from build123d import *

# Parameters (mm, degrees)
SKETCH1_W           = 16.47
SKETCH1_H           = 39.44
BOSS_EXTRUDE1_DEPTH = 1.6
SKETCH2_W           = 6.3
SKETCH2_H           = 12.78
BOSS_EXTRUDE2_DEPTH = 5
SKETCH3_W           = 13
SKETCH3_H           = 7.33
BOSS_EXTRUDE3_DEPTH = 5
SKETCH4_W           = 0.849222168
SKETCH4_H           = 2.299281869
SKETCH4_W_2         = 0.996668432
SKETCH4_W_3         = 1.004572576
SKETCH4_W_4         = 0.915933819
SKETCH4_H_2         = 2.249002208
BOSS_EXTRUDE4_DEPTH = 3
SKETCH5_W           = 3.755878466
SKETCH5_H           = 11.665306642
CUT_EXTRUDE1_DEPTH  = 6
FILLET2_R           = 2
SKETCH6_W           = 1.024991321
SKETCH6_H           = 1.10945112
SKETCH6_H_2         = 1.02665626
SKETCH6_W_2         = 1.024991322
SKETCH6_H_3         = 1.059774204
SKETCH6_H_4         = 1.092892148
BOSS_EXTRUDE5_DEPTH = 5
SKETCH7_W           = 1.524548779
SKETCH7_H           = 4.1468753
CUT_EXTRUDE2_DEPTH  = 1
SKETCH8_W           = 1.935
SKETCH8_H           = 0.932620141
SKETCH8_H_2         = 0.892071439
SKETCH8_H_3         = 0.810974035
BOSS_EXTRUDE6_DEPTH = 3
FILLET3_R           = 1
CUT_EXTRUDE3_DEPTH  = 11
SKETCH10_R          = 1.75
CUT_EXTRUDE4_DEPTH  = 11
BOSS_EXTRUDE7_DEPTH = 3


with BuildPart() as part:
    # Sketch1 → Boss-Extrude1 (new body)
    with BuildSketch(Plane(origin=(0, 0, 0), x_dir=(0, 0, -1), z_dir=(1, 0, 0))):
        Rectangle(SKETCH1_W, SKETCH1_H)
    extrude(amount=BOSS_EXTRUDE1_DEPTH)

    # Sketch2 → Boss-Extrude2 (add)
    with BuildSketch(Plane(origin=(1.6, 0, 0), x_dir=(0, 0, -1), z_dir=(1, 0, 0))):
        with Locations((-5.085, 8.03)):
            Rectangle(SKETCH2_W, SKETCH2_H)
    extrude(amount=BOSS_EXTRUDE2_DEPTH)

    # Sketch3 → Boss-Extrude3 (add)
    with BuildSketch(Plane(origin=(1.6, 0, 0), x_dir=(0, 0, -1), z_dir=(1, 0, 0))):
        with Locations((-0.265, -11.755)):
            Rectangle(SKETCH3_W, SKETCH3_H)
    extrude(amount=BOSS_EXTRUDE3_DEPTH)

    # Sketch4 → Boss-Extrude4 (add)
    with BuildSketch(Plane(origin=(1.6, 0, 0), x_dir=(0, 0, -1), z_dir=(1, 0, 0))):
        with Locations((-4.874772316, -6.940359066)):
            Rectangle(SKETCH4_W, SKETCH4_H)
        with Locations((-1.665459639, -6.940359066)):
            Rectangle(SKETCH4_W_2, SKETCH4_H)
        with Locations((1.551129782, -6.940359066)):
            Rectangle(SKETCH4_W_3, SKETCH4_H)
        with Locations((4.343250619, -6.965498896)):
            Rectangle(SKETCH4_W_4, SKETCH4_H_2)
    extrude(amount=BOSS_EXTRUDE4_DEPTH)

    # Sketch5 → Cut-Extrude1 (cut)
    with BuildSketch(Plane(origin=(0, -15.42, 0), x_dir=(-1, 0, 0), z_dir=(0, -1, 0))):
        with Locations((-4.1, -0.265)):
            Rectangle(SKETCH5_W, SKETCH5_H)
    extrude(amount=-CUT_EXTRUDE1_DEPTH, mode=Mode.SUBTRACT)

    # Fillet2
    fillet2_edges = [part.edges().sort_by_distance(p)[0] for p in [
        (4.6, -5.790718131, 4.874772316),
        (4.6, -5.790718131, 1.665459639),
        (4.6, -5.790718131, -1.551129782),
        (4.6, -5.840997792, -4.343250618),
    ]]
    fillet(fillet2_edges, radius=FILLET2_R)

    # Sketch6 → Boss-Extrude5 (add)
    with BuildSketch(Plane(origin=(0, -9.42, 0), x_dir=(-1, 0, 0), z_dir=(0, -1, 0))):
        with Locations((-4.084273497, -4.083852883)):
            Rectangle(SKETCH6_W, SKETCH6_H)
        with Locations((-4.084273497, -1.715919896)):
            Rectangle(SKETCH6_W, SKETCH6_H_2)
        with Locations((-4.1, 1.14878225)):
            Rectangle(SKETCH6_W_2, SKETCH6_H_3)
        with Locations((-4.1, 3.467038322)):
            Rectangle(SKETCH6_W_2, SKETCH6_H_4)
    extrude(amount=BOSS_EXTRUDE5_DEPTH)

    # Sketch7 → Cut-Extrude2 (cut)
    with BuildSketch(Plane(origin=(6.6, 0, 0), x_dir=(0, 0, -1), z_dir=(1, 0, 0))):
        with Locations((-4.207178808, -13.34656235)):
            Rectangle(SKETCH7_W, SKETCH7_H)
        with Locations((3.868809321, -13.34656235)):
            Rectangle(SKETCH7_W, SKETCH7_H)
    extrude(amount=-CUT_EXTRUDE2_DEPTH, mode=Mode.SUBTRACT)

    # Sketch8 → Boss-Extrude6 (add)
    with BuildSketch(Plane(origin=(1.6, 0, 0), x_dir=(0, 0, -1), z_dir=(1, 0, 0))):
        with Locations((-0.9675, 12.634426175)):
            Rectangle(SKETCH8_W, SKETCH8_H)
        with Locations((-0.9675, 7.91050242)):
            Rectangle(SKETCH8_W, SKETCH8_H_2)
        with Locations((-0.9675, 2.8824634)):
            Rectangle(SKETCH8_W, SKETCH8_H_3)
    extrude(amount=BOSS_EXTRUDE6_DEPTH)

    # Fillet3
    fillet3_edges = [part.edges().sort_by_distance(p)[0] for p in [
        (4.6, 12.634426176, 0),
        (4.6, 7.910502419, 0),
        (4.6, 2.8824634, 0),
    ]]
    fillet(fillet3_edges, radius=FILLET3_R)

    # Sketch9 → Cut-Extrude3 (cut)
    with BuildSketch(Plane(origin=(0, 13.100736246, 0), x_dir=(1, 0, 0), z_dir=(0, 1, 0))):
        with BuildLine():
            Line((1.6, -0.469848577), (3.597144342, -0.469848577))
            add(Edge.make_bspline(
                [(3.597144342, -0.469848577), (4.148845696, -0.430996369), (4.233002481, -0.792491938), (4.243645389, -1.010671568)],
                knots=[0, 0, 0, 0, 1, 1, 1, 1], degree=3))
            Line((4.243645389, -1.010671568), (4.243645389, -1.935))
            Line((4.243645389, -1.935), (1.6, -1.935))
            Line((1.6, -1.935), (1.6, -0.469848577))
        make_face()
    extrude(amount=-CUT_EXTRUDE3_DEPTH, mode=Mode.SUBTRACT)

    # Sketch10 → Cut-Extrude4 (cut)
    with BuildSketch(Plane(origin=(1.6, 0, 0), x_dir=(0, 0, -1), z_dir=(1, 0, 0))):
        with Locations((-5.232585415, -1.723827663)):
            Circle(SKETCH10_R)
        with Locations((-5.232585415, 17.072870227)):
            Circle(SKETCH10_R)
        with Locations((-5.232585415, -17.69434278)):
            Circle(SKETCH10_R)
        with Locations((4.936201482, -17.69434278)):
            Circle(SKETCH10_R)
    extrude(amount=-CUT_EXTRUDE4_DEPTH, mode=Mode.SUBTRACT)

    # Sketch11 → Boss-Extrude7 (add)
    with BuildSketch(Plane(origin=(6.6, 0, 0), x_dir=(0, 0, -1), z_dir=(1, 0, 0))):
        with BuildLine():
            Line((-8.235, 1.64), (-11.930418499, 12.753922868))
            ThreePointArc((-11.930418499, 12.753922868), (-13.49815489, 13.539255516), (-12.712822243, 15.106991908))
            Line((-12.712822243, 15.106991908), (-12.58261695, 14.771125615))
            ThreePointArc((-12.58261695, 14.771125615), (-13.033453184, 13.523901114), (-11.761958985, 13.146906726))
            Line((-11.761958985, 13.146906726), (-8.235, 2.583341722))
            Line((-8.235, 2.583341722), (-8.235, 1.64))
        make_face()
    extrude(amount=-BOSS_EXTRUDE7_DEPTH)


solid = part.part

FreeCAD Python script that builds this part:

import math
import FreeCAD as App
import Part
import Sketcher
from FreeCAD import Vector
Q = App.Units.Quantity


def edges_at(feature, points):
    """Names of the edges that pass closest to the given points."""
    edges = feature.Shape.Edges
    near = lambda p: min(range(len(edges)), key=lambda i: edges[i].distToShape(Part.Vertex(*p))[0])
    return sorted({f"Edge{near(p) + 1}" for p in points})

doc = App.newDocument("Part")
params = doc.addObject("Spreadsheet::Sheet", "Params")
for row, (alias, value) in enumerate([
    ("sketch1_width", "39.44 mm"),
    ("sketch1_height", "16.47 mm"),
    ("pad1_length", "1.6 mm"),
    ("sketch2_height", "6.3 mm"),
    ("sketch2_width", "12.78 mm"),
    ("pad2_length", "5 mm"),
    ("sketch3_height", "13 mm"),
    ("sketch3_width", "7.33 mm"),
    ("pad3_length", "5 mm"),
    ("pad4_length", "3 mm"),
    ("pocket1_length", "6 mm"),
    ("fillet_radius", "2 mm"),
    ("pad5_length", "5 mm"),
    ("pocket2_length", "1 mm"),
    ("pad6_length", "3 mm"),
    ("fillet2_radius", "1 mm"),
    ("pocket3_length", "11 mm"),
    ("sketch10_diameter", "3.5 mm"),
    ("pocket4_length", "11 mm"),
    ("pad7_length", "3 mm"),
], start=1):
    params.set(f"A{row}", alias)
    params.set(f"B{row}", "=" + value)
    params.setAlias(f"B{row}", alias)

body = doc.addObject("PartDesign::Body", "Body")

# Sketch on YZ plane
sketch1 = doc.addObject("Sketcher::SketchObject", "Sketch")
body.addObject(sketch1)
sketch1.AttachmentSupport = (doc.YZ_Plane, [""])
sketch1.MapMode = "FlatFace"
sketch1.addGeometry([
    Part.LineSegment(Vector(20, 8, 0), Vector(-20, 8, 0)),
    Part.LineSegment(Vector(-20, 8, 0), Vector(-20, -8, 0)),
    Part.LineSegment(Vector(-20, -8, 0), Vector(20, -8, 0)),
    Part.LineSegment(Vector(20, -8, 0), Vector(20, 8, 0)),
], False)
sketch1.addConstraint([
    Sketcher.Constraint("Coincident", 0, 2, 1, 1),
    Sketcher.Constraint("Coincident", 1, 2, 2, 1),
    Sketcher.Constraint("Coincident", 2, 2, 3, 1),
    Sketcher.Constraint("Coincident", 3, 2, 0, 1),
    Sketcher.Constraint("Horizontal", 0),
    Sketcher.Constraint("Vertical", 1),
    Sketcher.Constraint("Horizontal", 2),
    Sketcher.Constraint("Vertical", 3),
    Sketcher.Constraint("Symmetric", 0, 2, 2, 2, -1, 1),
    Sketcher.Constraint("DistanceX", 0, 2, 0, 1, Q("39.44 mm")),
    Sketcher.Constraint("DistanceY", 1, 2, 1, 1, Q("16.47 mm")),
])
sketch1.setExpression("Constraints[9]", "Params.sketch1_width")
sketch1.setExpression("Constraints[10]", "Params.sketch1_height")
pad1 = doc.addObject("PartDesign::Pad", "Pad")
body.addObject(pad1)
pad1.Profile = sketch1
pad1.setExpression("Length", "Params.pad1_length")

# Sketch on YZ plane
sketch2 = doc.addObject("Sketcher::SketchObject", "Sketch001")
body.addObject(sketch2)
sketch2.AttachmentSupport = (doc.YZ_Plane, [""])
sketch2.MapMode = "FlatFace"
sketch2.AttachmentOffset = App.Placement(Vector(0, 0, 1.6), App.Rotation())
sketch2.addGeometry([
    Part.LineSegment(Vector(14, 8, 0), Vector(2, 8, 0)),
    Part.LineSegment(Vector(2, 8, 0), Vector(2, 2, 0)),
    Part.LineSegment(Vector(2, 2, 0), Vector(14, 2, 0)),
    Part.LineSegment(Vector(14, 2, 0), Vector(14, 8, 0)),
], False)
sketch2.addConstraint([
    Sketcher.Constraint("Coincident", 0, 2, 1, 1),
    Sketcher.Constraint("Coincident", 1, 2, 2, 1),
    Sketcher.Constraint("Coincident", 2, 2, 3, 1),
    Sketcher.Constraint("Coincident", 3, 2, 0, 1),
    Sketcher.Constraint("Horizontal", 0),
    Sketcher.Constraint("Vertical", 1),
    Sketcher.Constraint("Horizontal", 2),
    Sketcher.Constraint("Vertical", 3),
    Sketcher.Constraint("DistanceY", 1, 2, 1, 1, Q("6.3 mm")),
    Sketcher.Constraint("DistanceX", 0, 2, 0, 1, Q("12.78 mm")),
    Sketcher.Constraint("DistanceX", -1, 1, 0, 2, Q("1.64 mm")),
    Sketcher.Constraint("DistanceY", -1, 1, 0, 2, Q("8.235 mm")),
])
sketch2.setExpression("Constraints[8]", "Params.sketch2_height")
sketch2.setExpression("Constraints[9]", "Params.sketch2_width")
pad2 = doc.addObject("PartDesign::Pad", "Pad001")
body.addObject(pad2)
pad2.Profile = sketch2
pad2.setExpression("Length", "Params.pad2_length")

# Sketch on YZ plane
sketch3 = doc.addObject("Sketcher::SketchObject", "Sketch002")
body.addObject(sketch3)
sketch3.AttachmentSupport = (doc.YZ_Plane, [""])
sketch3.MapMode = "FlatFace"
sketch3.AttachmentOffset = App.Placement(Vector(0, 0, 1.6), App.Rotation())
sketch3.addGeometry([
    Part.LineSegment(Vector(-8, 7, 0), Vector(-15, 7, 0)),
    Part.LineSegment(Vector(-15, 7, 0), Vector(-15, -6, 0)),
    Part.LineSegment(Vector(-15, -6, 0), Vector(-8, -6, 0)),
    Part.LineSegment(Vector(-8, -6, 0), Vector(-8, 7, 0)),
], False)
sketch3.addConstraint([
    Sketcher.Constraint("Coincident", 0, 2, 1, 1),
    Sketcher.Constraint("Coincident", 1, 2, 2, 1),
    Sketcher.Constraint("Coincident", 2, 2, 3, 1),
    Sketcher.Constraint("Coincident", 3, 2, 0, 1),
    Sketcher.Constraint("Horizontal", 0),
    Sketcher.Constraint("Vertical", 1),
    Sketcher.Constraint("Horizontal", 2),
    Sketcher.Constraint("Vertical", 3),
    Sketcher.Constraint("DistanceY", 1, 2, 1, 1, Q("13 mm")),
    Sketcher.Constraint("DistanceX", 0, 2, 0, 1, Q("7.33 mm")),
    Sketcher.Constraint("DistanceX", 0, 2, -1, 1, Q("15.42 mm")),
    Sketcher.Constraint("DistanceY", -1, 1, 0, 2, Q("6.765 mm")),
])
sketch3.setExpression("Constraints[8]", "Params.sketch3_height")
sketch3.setExpression("Constraints[9]", "Params.sketch3_width")
pad3 = doc.addObject("PartDesign::Pad", "Pad002")
body.addObject(pad3)
pad3.Profile = sketch3
pad3.setExpression("Length", "Params.pad3_length")

# Sketch on YZ plane
sketch4 = doc.addObject("Sketcher::SketchObject", "Sketch003")
body.addObject(sketch4)
sketch4.AttachmentSupport = (doc.YZ_Plane, [""])
sketch4.MapMode = "FlatFace"
sketch4.AttachmentOffset = App.Placement(Vector(0, 0, 1.6), App.Rotation())
sketch4.addGeometry([
    Part.LineSegment(Vector(-5.8, 5.3, 0), Vector(-8.1, 5.3, 0)),  # 0
    Part.LineSegment(Vector(-8.1, 5.3, 0), Vector(-8.1, 4.5, 0)),  # 1
    Part.LineSegment(Vector(-8.1, 4.5, 0), Vector(-5.8, 4.5, 0)),  # 2
    Part.LineSegment(Vector(-5.8, 4.5, 0), Vector(-5.8, 5.3, 0)),  # 3
    Part.LineSegment(Vector(-5.8, 2.2, 0), Vector(-8.1, 2.2, 0)),  # 4
    Part.LineSegment(Vector(-8.1, 2.2, 0), Vector(-8.1, 1.2, 0)),  # 5
    Part.LineSegment(Vector(-8.1, 1.2, 0), Vector(-5.8, 1.2, 0)),  # 6
    Part.LineSegment(Vector(-5.8, 1.2, 0), Vector(-5.8, 2.2, 0)),  # 7
    Part.LineSegment(Vector(-5.8, -1, 0), Vector(-8.1, -1, 0)),  # 8
    Part.LineSegment(Vector(-8.1, -1, 0), Vector(-8.1, -2.1, 0)),  # 9
    Part.LineSegment(Vector(-8.1, -2.1, 0), Vector(-5.8, -2.1, 0)),  # 10
    Part.LineSegment(Vector(-5.8, -2.1, 0), Vector(-5.8, -1, 0)),  # 11
    Part.LineSegment(Vector(-5.8, -3.9, 0), Vector(-8.1, -3.9, 0)),  # 12
    Part.LineSegment(Vector(-8.1, -3.9, 0), Vector(-8.1, -4.8, 0)),  # 13
    Part.LineSegment(Vector(-8.1, -4.8, 0), Vector(-5.8, -4.8, 0)),  # 14
    Part.LineSegment(Vector(-5.8, -4.8, 0), Vector(-5.8, -3.9, 0)),  # 15
], False)
sketch4.addConstraint([
    Sketcher.Constraint("Coincident", 0, 2, 1, 1),
    Sketcher.Constraint("Coincident", 1, 2, 2, 1),
    Sketcher.Constraint("Coincident", 2, 2, 3, 1),
    Sketcher.Constraint("Coincident", 3, 2, 0, 1),
    Sketcher.Constraint("Coincident", 4, 2, 5, 1),
    Sketcher.Constraint("Coincident", 5, 2, 6, 1),
    Sketcher.Constraint("Coincident", 6, 2, 7, 1),
    Sketcher.Constraint("Coincident", 7, 2, 4, 1),
    Sketcher.Constraint("Coincident", 8, 2, 9, 1),
    Sketcher.Constraint("Coincident", 9, 2, 10, 1),
    Sketcher.Constraint("Coincident", 10, 2, 11, 1),
    Sketcher.Constraint("Coincident", 11, 2, 8, 1),
    Sketcher.Constraint("Coincident", 12, 2, 13, 1),
    Sketcher.Constraint("Coincident", 13, 2, 14, 1),
    Sketcher.Constraint("Coincident", 14, 2, 15, 1),
    Sketcher.Constraint("Coincident", 15, 2, 12, 1),
    Sketcher.Constraint("Horizontal", 0),
    Sketcher.Constraint("Vertical", 1),
    Sketcher.Constraint("Horizontal", 2),
    Sketcher.Constraint("Vertical", 3),
    Sketcher.Constraint("Horizontal", 4),
    Sketcher.Constraint("Vertical", 5),
    Sketcher.Constraint("Horizontal", 6),
    Sketcher.Constraint("Vertical", 7),
    Sketcher.Constraint("Horizontal", 8),
    Sketcher.Constraint("Vertical", 9),
    Sketcher.Constraint("Horizontal", 10),
    Sketcher.Constraint("Vertical", 11),
    Sketcher.Constraint("Horizontal", 12),
    Sketcher.Constraint("Vertical", 13),
    Sketcher.Constraint("Horizontal", 14),
    Sketcher.Constraint("Vertical", 15),
    Sketcher.Constraint("Vertical", 1, 2, 4, 2),
    Sketcher.Constraint("Vertical", 3, 2, 6, 2),
    Sketcher.Constraint("Vertical", 5, 2, 8, 2),
    Sketcher.Constraint("Vertical", 7, 2, 10, 2),
    Sketcher.Constraint("Vertical", 9, 2, 12, 2),
    Sketcher.Constraint("DistanceX", 0, 2, -1, 1, Q("8.09 mm")),
    Sketcher.Constraint("DistanceX", 0, 2, 0, 1, Q("2.299282 mm")),
    Sketcher.Constraint("DistanceY", 5, 2, 5, 1, Q("0.996668 mm")),
    Sketcher.Constraint("DistanceY", 13, 2, 9, 2, Q("2.747801 mm")),
    Sketcher.Constraint("DistanceX", 12, 2, 12, 1, Q("2.249002 mm")),
    Sketcher.Constraint("DistanceY", 1, 2, 1, 1, Q("0.849222 mm")),
    Sketcher.Constraint("DistanceY", 9, 2, 9, 1, Q("1.004573 mm")),
    Sketcher.Constraint("DistanceY", 13, 2, 13, 1, Q("0.915934 mm")),
    Sketcher.Constraint("DistanceY", -1, 1, 1, 2, Q("4.450161 mm")),
    Sketcher.Constraint("DistanceY", 4, 2, 0, 2, Q("3.13559 mm")),
    Sketcher.Constraint("DistanceY", 8, 2, 5, 2, Q("2.215969 mm")),
])
pad4 = doc.addObject("PartDesign::Pad", "Pad003")
body.addObject(pad4)
pad4.Profile = sketch4
pad4.setExpression("Length", "Params.pad4_length")

# Sketch on XZ plane
sketch5 = doc.addObject("Sketcher::SketchObject", "Sketch004")
body.addObject(sketch5)
sketch5.AttachmentSupport = (doc.XZ_Plane, [""])
sketch5.MapMode = "FlatFace"
sketch5.AttachmentOffset = App.Placement(Vector(0, 0, 15.42), App.Rotation())
sketch5.addGeometry([
    Part.LineSegment(Vector(6, -5.6, 0), Vector(6, 6.1, 0)),
    Part.LineSegment(Vector(6, 6.1, 0), Vector(2.2, 6.1, 0)),
    Part.LineSegment(Vector(2.2, 6.1, 0), Vector(2.2, -5.6, 0)),
    Part.LineSegment(Vector(2.2, -5.6, 0), Vector(6, -5.6, 0)),
], False)
sketch5.addConstraint([
    Sketcher.Constraint("Coincident", 0, 2, 1, 1),
    Sketcher.Constraint("Coincident", 1, 2, 2, 1),
    Sketcher.Constraint("Coincident", 2, 2, 3, 1),
    Sketcher.Constraint("Coincident", 3, 2, 0, 1),
    Sketcher.Constraint("Vertical", 0),
    Sketcher.Constraint("Horizontal", 1),
    Sketcher.Constraint("Vertical", 2),
    Sketcher.Constraint("Horizontal", 3),
    Sketcher.Constraint("DistanceX", 1, 2, 1, 1, Q("3.755878 mm")),
    Sketcher.Constraint("DistanceY", 0, 1, 0, 2, Q("11.665307 mm")),
    Sketcher.Constraint("DistanceX", -1, 1, 0, 2, Q("5.977939 mm")),
    Sketcher.Constraint("DistanceY", -1, 1, 0, 2, Q("6.097653 mm")),
])
pocket1 = doc.addObject("PartDesign::Pocket", "Pocket")
body.addObject(pocket1)
pocket1.Profile = sketch5
pocket1.setExpression("Length", "Params.pocket1_length")
doc.recompute()

fillet = doc.addObject("PartDesign::Fillet", "Fillet")
body.addObject(fillet)
fillet.Base = (pocket1, edges_at(pocket1, [
    (4.6, -5.791, 4.875),
    (4.6, -5.791, 1.665),
    (4.6, -5.791, -1.551),
    (4.6, -5.841, -4.343),
]))
fillet.setExpression("Radius", "Params.fillet_radius")

# Sketch on XZ plane
sketch6 = doc.addObject("Sketcher::SketchObject", "Sketch005")
body.addObject(sketch6)
sketch6.AttachmentSupport = (doc.XZ_Plane, [""])
sketch6.MapMode = "FlatFace"
sketch6.AttachmentOffset = App.Placement(Vector(0, 0, 9.42), App.Rotation())
sketch6.addGeometry([
    Part.LineSegment(Vector(4.6, 3.5, 0), Vector(4.6, 4.6, 0)),  # 0
    Part.LineSegment(Vector(4.6, 4.6, 0), Vector(3.6, 4.6, 0)),  # 1
    Part.LineSegment(Vector(3.6, 4.6, 0), Vector(3.6, 3.5, 0)),  # 2
    Part.LineSegment(Vector(3.6, 3.5, 0), Vector(4.6, 3.5, 0)),  # 3
    Part.LineSegment(Vector(4.6, 1.2, 0), Vector(4.6, 2.2, 0)),  # 4
    Part.LineSegment(Vector(4.6, 2.2, 0), Vector(3.6, 2.2, 0)),  # 5
    Part.LineSegment(Vector(3.6, 2.2, 0), Vector(3.6, 1.2, 0)),  # 6
    Part.LineSegment(Vector(3.6, 1.2, 0), Vector(4.6, 1.2, 0)),  # 7
    Part.LineSegment(Vector(4.6, -1.7, 0), Vector(4.6, -0.6, 0)),  # 8
    Part.LineSegment(Vector(4.6, -0.6, 0), Vector(3.6, -0.6, 0)),  # 9
    Part.LineSegment(Vector(3.6, -0.6, 0), Vector(3.6, -1.7, 0)),  # 10
    Part.LineSegment(Vector(3.6, -1.7, 0), Vector(4.6, -1.7, 0)),  # 11
    Part.LineSegment(Vector(4.6, -4, 0), Vector(4.6, -2.9, 0)),  # 12
    Part.LineSegment(Vector(4.6, -2.9, 0), Vector(3.6, -2.9, 0)),  # 13
    Part.LineSegment(Vector(3.6, -2.9, 0), Vector(3.6, -4, 0)),  # 14
    Part.LineSegment(Vector(3.6, -4, 0), Vector(4.6, -4, 0)),  # 15
], False)
sketch6.addConstraint([
    Sketcher.Constraint("Coincident", 0, 2, 1, 1),
    Sketcher.Constraint("Coincident", 1, 2, 2, 1),
    Sketcher.Constraint("Coincident", 2, 2, 3, 1),
    Sketcher.Constraint("Coincident", 3, 2, 0, 1),
    Sketcher.Constraint("Coincident", 4, 2, 5, 1),
    Sketcher.Constraint("Coincident", 5, 2, 6, 1),
    Sketcher.Constraint("Coincident", 6, 2, 7, 1),
    Sketcher.Constraint("Coincident", 7, 2, 4, 1),
    Sketcher.Constraint("Coincident", 8, 2, 9, 1),
    Sketcher.Constraint("Coincident", 9, 2, 10, 1),
    Sketcher.Constraint("Coincident", 10, 2, 11, 1),
    Sketcher.Constraint("Coincident", 11, 2, 8, 1),
    Sketcher.Constraint("Coincident", 12, 2, 13, 1),
    Sketcher.Constraint("Coincident", 13, 2, 14, 1),
    Sketcher.Constraint("Coincident", 14, 2, 15, 1),
    Sketcher.Constraint("Coincident", 15, 2, 12, 1),
    Sketcher.Constraint("Vertical", 0),
    Sketcher.Constraint("Horizontal", 1),
    Sketcher.Constraint("Vertical", 2),
    Sketcher.Constraint("Horizontal", 3),
    Sketcher.Constraint("Vertical", 4),
    Sketcher.Constraint("Horizontal", 5),
    Sketcher.Constraint("Vertical", 6),
    Sketcher.Constraint("Horizontal", 7),
    Sketcher.Constraint("Vertical", 8),
    Sketcher.Constraint("Horizontal", 9),
    Sketcher.Constraint("Vertical", 10),
    Sketcher.Constraint("Horizontal", 11),
    Sketcher.Constraint("Vertical", 12),
    Sketcher.Constraint("Horizontal", 13),
    Sketcher.Constraint("Vertical", 14),
    Sketcher.Constraint("Horizontal", 15),
    Sketcher.Constraint("Vertical", 3, 2, 4, 2),
    Sketcher.Constraint("Vertical", 2, 2, 5, 2),
    Sketcher.Constraint("Vertical", 11, 2, 12, 2),
    Sketcher.Constraint("Vertical", 10, 2, 13, 2),
    Sketcher.Constraint("Equal", 7, 9),
    Sketcher.Constraint("DistanceX", 1, 2, 1, 1, Q("1.024991 mm")),
    Sketcher.Constraint("DistanceY", 0, 1, 0, 2, Q("1.109451 mm")),
    Sketcher.Constraint("DistanceY", 4, 1, 4, 2, Q("1.026656 mm")),
    Sketcher.Constraint("DistanceY", 8, 1, 8, 2, Q("1.059774 mm")),
    Sketcher.Constraint("DistanceY", 12, 1, 12, 2, Q("1.092892 mm")),
    Sketcher.Constraint("DistanceX", -1, 1, 0, 2, Q("4.596769 mm")),
    Sketcher.Constraint("DistanceY", -1, 1, 0, 2, Q("4.638578 mm")),
    Sketcher.Constraint("DistanceY", -1, 1, 4, 2, Q("2.229248 mm")),
    Sketcher.Constraint("DistanceY", 10, 2, -1, 1, Q("1.678669 mm")),
    Sketcher.Constraint("DistanceY", 14, 2, 9, 2, Q("3.394589 mm")),
    Sketcher.Constraint("DistanceX", -1, 1, 8, 2, Q("4.612496 mm")),
])
pad5 = doc.addObject("PartDesign::Pad", "Pad004")
body.addObject(pad5)
pad5.Profile = sketch6
pad5.setExpression("Length", "Params.pad5_length")

# Sketch on YZ plane
sketch7 = doc.addObject("Sketcher::SketchObject", "Sketch006")
body.addObject(sketch7)
sketch7.AttachmentSupport = (doc.YZ_Plane, [""])
sketch7.MapMode = "FlatFace"
sketch7.AttachmentOffset = App.Placement(Vector(0, 0, 6.6), App.Rotation())
sketch7.addGeometry([
    Part.LineSegment(Vector(-11.3, 5, 0), Vector(-15.4, 5, 0)),  # 0
    Part.LineSegment(Vector(-15.4, 5, 0), Vector(-15.4, 3.4, 0)),  # 1
    Part.LineSegment(Vector(-15.4, 3.4, 0), Vector(-11.3, 3.4, 0)),  # 2
    Part.LineSegment(Vector(-11.3, 3.4, 0), Vector(-11.3, 5, 0)),  # 3
    Part.LineSegment(Vector(-11.3, -3.1, 0), Vector(-15.4, -3.1, 0)),  # 4
    Part.LineSegment(Vector(-15.4, -3.1, 0), Vector(-15.4, -4.6, 0)),  # 5
    Part.LineSegment(Vector(-15.4, -4.6, 0), Vector(-11.3, -4.6, 0)),  # 6
    Part.LineSegment(Vector(-11.3, -4.6, 0), Vector(-11.3, -3.1, 0)),  # 7
], False)
sketch7.addConstraint([
    Sketcher.Constraint("Coincident", 0, 2, 1, 1),
    Sketcher.Constraint("Coincident", 1, 2, 2, 1),
    Sketcher.Constraint("Coincident", 2, 2, 3, 1),
    Sketcher.Constraint("Coincident", 3, 2, 0, 1),
    Sketcher.Constraint("Coincident", 4, 2, 5, 1),
    Sketcher.Constraint("Coincident", 5, 2, 6, 1),
    Sketcher.Constraint("Coincident", 6, 2, 7, 1),
    Sketcher.Constraint("Coincident", 7, 2, 4, 1),
    Sketcher.Constraint("Horizontal", 0),
    Sketcher.Constraint("Vertical", 1),
    Sketcher.Constraint("Horizontal", 2),
    Sketcher.Constraint("Vertical", 3),
    Sketcher.Constraint("Horizontal", 4),
    Sketcher.Constraint("Vertical", 5),
    Sketcher.Constraint("Horizontal", 6),
    Sketcher.Constraint("Vertical", 7),
    Sketcher.Constraint("Vertical", 1, 2, 4, 2),
    Sketcher.Constraint("Vertical", 3, 2, 6, 2),
    Sketcher.Constraint("Equal", 3, 5),
    Sketcher.Constraint("DistanceX", 0, 2, -1, 1, Q("15.42 mm")),
    Sketcher.Constraint("DistanceY", 1, 2, 1, 1, Q("1.524549 mm")),
    Sketcher.Constraint("DistanceX", 0, 2, 0, 1, Q("4.146875 mm")),
    Sketcher.Constraint("DistanceY", 4, 2, 1, 2, Q("6.551439 mm")),
    Sketcher.Constraint("DistanceY", -1, 1, 0, 2, Q("4.969453 mm")),
])
pocket2 = doc.addObject("PartDesign::Pocket", "Pocket001")
body.addObject(pocket2)
pocket2.Profile = sketch7
pocket2.setExpression("Length", "Params.pocket2_length")

# Sketch on YZ plane
sketch8 = doc.addObject("Sketcher::SketchObject", "Sketch007")
body.addObject(sketch8)
sketch8.AttachmentSupport = (doc.YZ_Plane, [""])
sketch8.MapMode = "FlatFace"
sketch8.AttachmentOffset = App.Placement(Vector(0, 0, 1.6), App.Rotation())
sketch8.addGeometry([
    Part.LineSegment(Vector(13.1, 1.9, 0), Vector(12.2, 1.9, 0)),  # 0
    Part.LineSegment(Vector(12.2, 1.9, 0), Vector(12.2, 0, 0)),  # 1
    Part.LineSegment(Vector(12.2, 0, 0), Vector(13.1, 0, 0)),  # 2
    Part.LineSegment(Vector(13.1, 0, 0), Vector(13.1, 1.9, 0)),  # 3
    Part.LineSegment(Vector(8.4, 1.9, 0), Vector(7.5, 1.9, 0)),  # 4
    Part.LineSegment(Vector(7.5, 1.9, 0), Vector(7.5, 0, 0)),  # 5
    Part.LineSegment(Vector(7.5, 0, 0), Vector(8.4, 0, 0)),  # 6
    Part.LineSegment(Vector(8.4, 0, 0), Vector(8.4, 1.9, 0)),  # 7
    Part.LineSegment(Vector(3.3, 1.9, 0), Vector(2.5, 1.9, 0)),  # 8
    Part.LineSegment(Vector(2.5, 1.9, 0), Vector(2.5, 0, 0)),  # 9
    Part.LineSegment(Vector(2.5, 0, 0), Vector(3.3, 0, 0)),  # 10
    Part.LineSegment(Vector(3.3, 0, 0), Vector(3.3, 1.9, 0)),  # 11
], False)
sketch8.addConstraint([
    Sketcher.Constraint("Coincident", 0, 2, 1, 1),
    Sketcher.Constraint("Coincident", 1, 2, 2, 1),
    Sketcher.Constraint("Coincident", 2, 2, 3, 1),
    Sketcher.Constraint("Coincident", 3, 2, 0, 1),
    Sketcher.Constraint("Coincident", 4, 2, 5, 1),
    Sketcher.Constraint("Coincident", 5, 2, 6, 1),
    Sketcher.Constraint("Coincident", 6, 2, 7, 1),
    Sketcher.Constraint("Coincident", 7, 2, 4, 1),
    Sketcher.Constraint("Coincident", 8, 2, 9, 1),
    Sketcher.Constraint("Coincident", 9, 2, 10, 1),
    Sketcher.Constraint("Coincident", 10, 2, 11, 1),
    Sketcher.Constraint("Coincident", 11, 2, 8, 1),
    Sketcher.Constraint("Horizontal", 0),
    Sketcher.Constraint("Vertical", 1),
    Sketcher.Constraint("Horizontal", 2),
    Sketcher.Constraint("Vertical", 3),
    Sketcher.Constraint("Horizontal", 4),
    Sketcher.Constraint("Vertical", 5),
    Sketcher.Constraint("Horizontal", 6),
    Sketcher.Constraint("Vertical", 7),
    Sketcher.Constraint("Horizontal", 8),
    Sketcher.Constraint("Vertical", 9),
    Sketcher.Constraint("Horizontal", 10),
    Sketcher.Constraint("Vertical", 11),
    Sketcher.Constraint("PointOnObject", 1, 2, -1),
    Sketcher.Constraint("PointOnObject", 5, 2, -1),
    Sketcher.Constraint("PointOnObject", 9, 2, -1),
    Sketcher.Constraint("Horizontal", 3, 2, 4, 2),
    Sketcher.Constraint("Horizontal", 7, 2, 8, 2),
    Sketcher.Constraint("DistanceY", 1, 2, 1, 1, Q("1.935 mm")),
    Sketcher.Constraint("DistanceX", 0, 2, 0, 1, Q("0.93262 mm")),
    Sketcher.Constraint("DistanceX", 4, 2, 4, 1, Q("0.892071 mm")),
    Sketcher.Constraint("DistanceX", 6, 2, 2, 2, Q("4.744198 mm")),
    Sketcher.Constraint("DistanceX", 8, 2, 8, 1, Q("0.810974 mm")),
    Sketcher.Constraint("DistanceX", -1, 1, 6, 2, Q("8.356538 mm")),
    Sketcher.Constraint("DistanceX", -1, 1, 10, 2, Q("3.28795 mm")),
])
pad6 = doc.addObject("PartDesign::Pad", "Pad005")
body.addObject(pad6)
pad6.Profile = sketch8
pad6.setExpression("Length", "Params.pad6_length")
doc.recompute()

fillet2 = doc.addObject("PartDesign::Fillet", "Fillet001")
body.addObject(fillet2)
fillet2.Base = (pad6, edges_at(pad6, [(4.6, 12.634, 0), (4.6, 7.911, 0), (4.6, 2.882, 0)]))
fillet2.setExpression("Radius", "Params.fillet2_radius")

# Sketch on XZ plane
sketch9 = doc.addObject("Sketcher::SketchObject", "Sketch008")
body.addObject(sketch9)
sketch9.AttachmentSupport = (doc.XZ_Plane, [""])
sketch9.MapMode = "FlatFace"
sketch9.AttachmentOffset = App.Placement(Vector(0, 0, -13.100736), App.Rotation())
sketch9.addGeometry([
    Part.LineSegment(Vector(3.597144, 0.469849, 0), Vector(1.6, 0.469849, 0)),  # 0
    Part.LineSegment(Vector(1.6, 0.469849, 0), Vector(1.6, 1.935, 0)),  # 1
    Part.LineSegment(Vector(1.6, 1.935, 0), Vector(4.243645, 1.935, 0)),  # 2
    Part.LineSegment(Vector(4.243645, 1.935, 0), Vector(4.243645, 1.010672, 0)),  # 3
    Part.BSplineCurve([Vector(3.597144, 0.469849, 0), Vector(4.148846, 0.430996, 0), Vector(4.233002, 0.792492, 0), Vector(4.243645, 1.010672, 0)], [4, 4], [0, 1], False, 3, [1, 1, 1, 1], False),  # 4
], False)
sketch9.addConstraint([
    Sketcher.Constraint("Block", 4),
    Sketcher.Constraint("Coincident", 0, 2, 1, 1),
    Sketcher.Constraint("Coincident", 1, 2, 2, 1),
    Sketcher.Constraint("Coincident", 2, 2, 3, 1),
    Sketcher.Constraint("Coincident", 3, 2, 4, 2),
    Sketcher.Constraint("Coincident", 4, 1, 0, 1),
    Sketcher.Constraint("Horizontal", 0),
    Sketcher.Constraint("Vertical", 1),
    Sketcher.Constraint("Horizontal", 2),
    Sketcher.Constraint("Vertical", 3),
    Sketcher.Constraint("DistanceX", -1, 1, 0, 2, Q("1.6 mm")),
    Sketcher.Constraint("DistanceY", -1, 1, 1, 2, Q("1.935 mm")),
])
pocket3 = doc.addObject("PartDesign::Pocket", "Pocket002")
body.addObject(pocket3)
pocket3.Profile = sketch9
pocket3.setExpression("Length", "Params.pocket3_length")
pocket3.Reversed = True

# Sketch on YZ plane
sketch10 = doc.addObject("Sketcher::SketchObject", "Sketch009")
body.addObject(sketch10)
sketch10.AttachmentSupport = (doc.YZ_Plane, [""])
sketch10.MapMode = "FlatFace"
sketch10.AttachmentOffset = App.Placement(Vector(0, 0, 1.6), App.Rotation())
sketch10.addGeometry([
    Part.Circle(Vector(-1.7, 5.2, 0), Vector(0, 0, 1), 1.8),
    Part.Circle(Vector(17.1, 5.2, 0), Vector(0, 0, 1), 1.8),
    Part.Circle(Vector(-17.7, 5.2, 0), Vector(0, 0, 1), 1.8),
    Part.Circle(Vector(-17.7, -4.9, 0), Vector(0, 0, 1), 1.8),
], False)
sketch10.addConstraint([
    Sketcher.Constraint("Equal", 0, 1),
    Sketcher.Constraint("Equal", 1, 2),
    Sketcher.Constraint("Equal", 2, 3),
    Sketcher.Constraint("Horizontal", 0, 3, 1, 3),
    Sketcher.Constraint("Horizontal", 1, 3, 2, 3),
    Sketcher.Constraint("Vertical", 2, 3, 3, 3),
    Sketcher.Constraint("Diameter", 0, Q("3.5 mm")),
    Sketcher.Constraint("DistanceY", 3, 3, -1, 1, Q("4.936201 mm")),
    Sketcher.Constraint("DistanceX", -1, 1, 1, 3, Q("17.07287 mm")),
    Sketcher.Constraint("DistanceX", 0, 3, -1, 1, Q("1.723828 mm")),
    Sketcher.Constraint("DistanceY", -1, 1, 0, 3, Q("5.232585 mm")),
    Sketcher.Constraint("DistanceX", 2, 3, -1, 1, Q("17.694343 mm")),
])
sketch10.setExpression("Constraints[6]", "Params.sketch10_diameter")
pocket4 = doc.addObject("PartDesign::Pocket", "Pocket003")
body.addObject(pocket4)
pocket4.Profile = sketch10
pocket4.setExpression("Length", "Params.pocket4_length")

# Sketch on YZ plane
sketch11 = doc.addObject("Sketcher::SketchObject", "Sketch010")
body.addObject(sketch11)
sketch11.AttachmentSupport = (doc.YZ_Plane, [""])
sketch11.MapMode = "FlatFace"
sketch11.AttachmentOffset = App.Placement(Vector(0, 0, 6.6), App.Rotation())
sketch11.addGeometry([
    Part.LineSegment(Vector(12.75, 11.93, 0), Vector(1.64, 8.23, 0)),  # 0
    Part.LineSegment(Vector(1.64, 8.23, 0), Vector(2.58, 8.23, 0)),  # 1
    Part.LineSegment(Vector(2.58, 8.23, 0), Vector(13.15, 11.76, 0)),  # 2
    Part.ArcOfCircle(Part.Circle(Vector(13.93, 12.22, 0), Vector(0, 0, 1), 0.91), math.radians(23), math.radians(210)),  # 3
    Part.LineSegment(Vector(14.77, 12.58, 0), Vector(15.11, 12.71, 0)),  # 4
    Part.ArcOfCircle(Part.Circle(Vector(13.93, 12.32, 0), Vector(0, 0, 1), 1.24), math.radians(18), math.radians(198)),  # 5
], False)
sketch11.addConstraint([
    Sketcher.Constraint("Coincident", 0, 2, 1, 1),
    Sketcher.Constraint("Coincident", 1, 2, 2, 1),
    Sketcher.Constraint("Coincident", 2, 2, 3, 2),
    Sketcher.Constraint("Coincident", 3, 1, 4, 1),
    Sketcher.Constraint("Coincident", 4, 2, 5, 1),
    Sketcher.Constraint("Coincident", 5, 2, 0, 1),
    Sketcher.Constraint("Horizontal", 1),
    Sketcher.Constraint("DistanceX", -1, 1, 0, 2, Q("1.64 mm")),
    Sketcher.Constraint("Radius", 3, Q("0.911451 mm")),
    Sketcher.Constraint("DistanceY", -1, 1, 0, 2, Q("8.235 mm")),
    Sketcher.Constraint("Radius", 5, Q("1.239868 mm")),
    Sketcher.Constraint("Distance", 2, Q("11.136801 mm")),
    Sketcher.Constraint("DistanceX", 1, 1, 1, 2, Q("0.943342 mm")),
    Sketcher.Constraint("DistanceY", 5, 3, 4, 2, Q("0.391202 mm")),
    Sketcher.Constraint("DistanceY", 5, 2, 5, 3, Q("0.391202 mm")),
    Sketcher.Constraint("DistanceY", 5, 2, 3, 1, Q("0.652198 mm")),
    Sketcher.Constraint("Distance", 0, Q("11.71219 mm")),
    Sketcher.Constraint("Distance", 4, Q("0.360222 mm")),
    Sketcher.Constraint("DistanceY", -1, 1, 5, 3, Q("12.32162 mm")),
    Sketcher.Constraint("DistanceY", -1, 1, 2, 2, Q("11.761959 mm")),
])
pad7 = doc.addObject("PartDesign::Pad", "Pad006")
body.addObject(pad7)
pad7.Profile = sketch11
pad7.setExpression("Length", "Params.pad7_length")
pad7.Reversed = True

doc.recompute()
